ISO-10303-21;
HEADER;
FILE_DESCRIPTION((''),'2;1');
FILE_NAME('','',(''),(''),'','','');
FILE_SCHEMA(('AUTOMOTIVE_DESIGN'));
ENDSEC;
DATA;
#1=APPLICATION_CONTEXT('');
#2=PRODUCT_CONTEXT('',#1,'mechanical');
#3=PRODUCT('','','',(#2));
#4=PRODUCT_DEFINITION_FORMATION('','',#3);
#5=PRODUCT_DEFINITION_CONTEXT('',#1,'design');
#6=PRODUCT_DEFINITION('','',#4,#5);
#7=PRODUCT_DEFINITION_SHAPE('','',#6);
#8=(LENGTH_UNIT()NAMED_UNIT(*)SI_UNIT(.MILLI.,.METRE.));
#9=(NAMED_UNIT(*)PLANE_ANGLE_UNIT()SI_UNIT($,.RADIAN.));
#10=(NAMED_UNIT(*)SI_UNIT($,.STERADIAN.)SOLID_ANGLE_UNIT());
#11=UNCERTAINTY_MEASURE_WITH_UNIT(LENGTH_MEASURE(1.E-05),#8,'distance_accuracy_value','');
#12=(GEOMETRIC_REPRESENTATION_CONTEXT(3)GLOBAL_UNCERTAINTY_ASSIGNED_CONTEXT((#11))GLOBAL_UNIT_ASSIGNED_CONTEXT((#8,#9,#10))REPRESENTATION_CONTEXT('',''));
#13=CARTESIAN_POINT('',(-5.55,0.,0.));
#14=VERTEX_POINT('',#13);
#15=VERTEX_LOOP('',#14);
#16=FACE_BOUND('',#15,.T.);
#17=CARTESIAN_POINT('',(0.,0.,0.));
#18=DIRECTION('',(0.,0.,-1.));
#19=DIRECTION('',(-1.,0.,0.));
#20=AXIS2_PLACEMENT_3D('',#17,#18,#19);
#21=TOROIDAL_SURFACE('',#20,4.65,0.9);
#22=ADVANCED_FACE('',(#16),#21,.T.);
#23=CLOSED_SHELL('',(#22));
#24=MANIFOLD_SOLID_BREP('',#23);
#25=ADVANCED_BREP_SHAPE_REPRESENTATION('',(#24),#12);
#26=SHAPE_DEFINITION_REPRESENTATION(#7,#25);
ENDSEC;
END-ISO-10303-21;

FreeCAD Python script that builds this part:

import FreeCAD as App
import Part
import Sketcher

doc = App.newDocument("Part")
params = doc.addObject("Spreadsheet::Sheet", "Params")
for row, (alias, value) in enumerate([
    ("sketch1_diameter", "1.8 mm"),
    ("sketch2_diameter", "7.5 mm"),
], start=1):
    params.set(f"A{row}", alias)
    params.set(f"B{row}", "=" + value)
    params.setAlias(f"B{row}", alias)

body = doc.addObject("PartDesign::Body", "Body")

# Sketch on XZ plane
sketch1 = doc.addObject("Sketcher::SketchObject", "Sketch")
body.addObject(sketch1)
sketch1.AttachmentSupport = (doc.XZ_Plane, [""])
sketch1.MapMode = "FlatFace"
sketch1.addGeometry(Part.Circle(App.Vector(-4.7, 0, 0), App.Vector(0, 0, 1), 0.9), False)
sketch1.addConstraint([
    Sketcher.Constraint("PointOnObject", 0, 3, -1),
    Sketcher.Constraint("Diameter", 0, 1.8),
    Sketcher.Constraint("DistanceX", 0, 3, -1, 1, 4.65),
])
sketch1.setExpression("Constraints[1]", "Params.sketch1_diameter")

# Sketch on XY plane
sketch2 = doc.addObject("Sketcher::SketchObject", "Sketch001")
body.addObject(sketch2)
sketch2.AttachmentSupport = (doc.XY_Plane, [""])
sketch2.MapMode = "FlatFace"
sketch2.addGeometry(Part.Circle(App.Vector(0, 0, 0), App.Vector(0, 0, 1), 3.8), False)
sketch2.addConstraint([
    Sketcher.Constraint("Coincident", 0, 3, -1, 1),
    Sketcher.Constraint("Diameter", 0, 7.5),
])
sketch2.setExpression("Constraints[1]", "Params.sketch2_diameter")
doc.recompute()

additivepipe = doc.addObject("PartDesign::AdditivePipe", "AdditivePipe")
body.addObject(additivepipe)
additivepipe.Profile = sketch1
additivepipe.Spine = (sketch2, ["Edge1"])

doc.recompute()
